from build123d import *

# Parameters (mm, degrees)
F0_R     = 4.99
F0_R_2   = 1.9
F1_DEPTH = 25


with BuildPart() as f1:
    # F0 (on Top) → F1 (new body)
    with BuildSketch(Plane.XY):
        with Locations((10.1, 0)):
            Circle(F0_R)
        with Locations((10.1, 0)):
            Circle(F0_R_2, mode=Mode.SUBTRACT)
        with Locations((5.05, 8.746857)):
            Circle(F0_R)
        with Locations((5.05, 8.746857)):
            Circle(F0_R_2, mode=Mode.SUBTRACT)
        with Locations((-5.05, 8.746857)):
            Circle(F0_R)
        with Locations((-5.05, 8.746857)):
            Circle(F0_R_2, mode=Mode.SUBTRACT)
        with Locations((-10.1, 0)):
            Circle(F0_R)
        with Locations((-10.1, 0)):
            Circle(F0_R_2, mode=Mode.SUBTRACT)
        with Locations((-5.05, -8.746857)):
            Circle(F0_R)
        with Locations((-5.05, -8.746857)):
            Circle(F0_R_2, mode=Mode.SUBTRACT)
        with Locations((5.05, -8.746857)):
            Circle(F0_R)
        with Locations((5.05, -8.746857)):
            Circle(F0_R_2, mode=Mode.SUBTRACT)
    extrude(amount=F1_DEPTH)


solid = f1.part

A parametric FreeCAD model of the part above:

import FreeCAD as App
import Part
import Sketcher
from FreeCAD import Vector
Q = App.Units.Quantity

doc = App.newDocument("Part")
body = doc.addObject("PartDesign::Body", "Body")
body.AllowCompound = True

sketch1 = body.newObject("Sketcher::SketchObject", "Sketch")
sketch1.AttachmentSupport = (doc.getObject("XY_Plane"), [""])
sketch1.MapMode = "FlatFace"
sketch1.addGeometry(Part.Circle(Vector(10.1, 0, 0), Vector(0, 0, 1), 5), False)
sketch1.addGeometry(Part.Circle(Vector(10.1, 0, 0), Vector(0, 0, 1), 1.9), False)
sketch1.addGeometry(Part.Circle(Vector(5, 8.7, 0), Vector(0, 0, 1), 5), False)
sketch1.addGeometry(Part.Circle(Vector(5, 8.7, 0), Vector(0, 0, 1), 1.9), False)
sketch1.addGeometry(Part.Circle(Vector(-5, 8.7, 0), Vector(0, 0, 1), 5), False)
sketch1.addGeometry(Part.Circle(Vector(-5, 8.7, 0), Vector(0, 0, 1), 1.9), False)
sketch1.addGeometry(Part.Circle(Vector(-10.1, 0, 0), Vector(0, 0, 1), 5), False)
sketch1.addGeometry(Part.Circle(Vector(-10.1, 0, 0), Vector(0, 0, 1), 1.9), False)
sketch1.addGeometry(Part.Circle(Vector(-5, -8.7, 0), Vector(0, 0, 1), 5), False)
sketch1.addGeometry(Part.Circle(Vector(-5, -8.7, 0), Vector(0, 0, 1), 1.9), False)
sketch1.addGeometry(Part.Circle(Vector(5, -8.7, 0), Vector(0, 0, 1), 5), False)
sketch1.addGeometry(Part.Circle(Vector(5, -8.7, 0), Vector(0, 0, 1), 1.9), False)
sketch1.addConstraint(Sketcher.Constraint("Coincident", 1, 3, 0, 3))
sketch1.addConstraint(Sketcher.Constraint("Coincident", 3, 3, 2, 3))
sketch1.addConstraint(Sketcher.Constraint("Coincident", 5, 3, 4, 3))
sketch1.addConstraint(Sketcher.Constraint("Coincident", 7, 3, 6, 3))
sketch1.addConstraint(Sketcher.Constraint("Coincident", 9, 3, 8, 3))
sketch1.addConstraint(Sketcher.Constraint("Coincident", 11, 3, 10, 3))
sketch1.addConstraint(Sketcher.Constraint("Equal", 0, 2))
sketch1.addConstraint(Sketcher.Constraint("Equal", 1, 3))
sketch1.addConstraint(Sketcher.Constraint("Equal", 2, 4))
sketch1.addConstraint(Sketcher.Constraint("Equal", 3, 5))
sketch1.addConstraint(Sketcher.Constraint("Equal", 4, 6))
sketch1.addConstraint(Sketcher.Constraint("Equal", 5, 7))
sketch1.addConstraint(Sketcher.Constraint("Equal", 6, 8))
sketch1.addConstraint(Sketcher.Constraint("Equal", 7, 9))
sketch1.addConstraint(Sketcher.Constraint("Equal", 8, 10))
sketch1.addConstraint(Sketcher.Constraint("Equal", 9, 11))
sketch1.addConstraint(Sketcher.Constraint("Symmetric", 0, 3, 6, 3, -1, 1))
sketch1.addConstraint(Sketcher.Constraint("Symmetric", 2, 3, 8, 3, -1, 1))
sketch1.addConstraint(Sketcher.Constraint("Symmetric", 4, 3, 10, 3, -1, 1))
sketch1.addConstraint(Sketcher.Constraint("Symmetric", 2, 3, 4, 3, -2))
sketch1.addConstraint(Sketcher.Constraint("PointOnObject", 0, 3, -1))
sketch1.addConstraint(Sketcher.Constraint("Diameter", 1, Q("3.8 mm")))
sketch1.addConstraint(Sketcher.Constraint("Diameter", 0, Q("9.98 mm")))
sketch1.addConstraint(Sketcher.Constraint("DistanceX", -1, 1, 0, 3, Q("10.1 mm")))
sketch1.addConstraint(Sketcher.Constraint("DistanceX", 4, 3, 2, 3, Q("10.1 mm")))
sketch1.addConstraint(Sketcher.Constraint("DistanceY", -1, 1, 2, 3, Q("8.746857 mm")))
pad1 = body.newObject("PartDesign::Pad", "Pad")
pad1.Profile = sketch1
pad1.Length = 25

doc.recompute()
